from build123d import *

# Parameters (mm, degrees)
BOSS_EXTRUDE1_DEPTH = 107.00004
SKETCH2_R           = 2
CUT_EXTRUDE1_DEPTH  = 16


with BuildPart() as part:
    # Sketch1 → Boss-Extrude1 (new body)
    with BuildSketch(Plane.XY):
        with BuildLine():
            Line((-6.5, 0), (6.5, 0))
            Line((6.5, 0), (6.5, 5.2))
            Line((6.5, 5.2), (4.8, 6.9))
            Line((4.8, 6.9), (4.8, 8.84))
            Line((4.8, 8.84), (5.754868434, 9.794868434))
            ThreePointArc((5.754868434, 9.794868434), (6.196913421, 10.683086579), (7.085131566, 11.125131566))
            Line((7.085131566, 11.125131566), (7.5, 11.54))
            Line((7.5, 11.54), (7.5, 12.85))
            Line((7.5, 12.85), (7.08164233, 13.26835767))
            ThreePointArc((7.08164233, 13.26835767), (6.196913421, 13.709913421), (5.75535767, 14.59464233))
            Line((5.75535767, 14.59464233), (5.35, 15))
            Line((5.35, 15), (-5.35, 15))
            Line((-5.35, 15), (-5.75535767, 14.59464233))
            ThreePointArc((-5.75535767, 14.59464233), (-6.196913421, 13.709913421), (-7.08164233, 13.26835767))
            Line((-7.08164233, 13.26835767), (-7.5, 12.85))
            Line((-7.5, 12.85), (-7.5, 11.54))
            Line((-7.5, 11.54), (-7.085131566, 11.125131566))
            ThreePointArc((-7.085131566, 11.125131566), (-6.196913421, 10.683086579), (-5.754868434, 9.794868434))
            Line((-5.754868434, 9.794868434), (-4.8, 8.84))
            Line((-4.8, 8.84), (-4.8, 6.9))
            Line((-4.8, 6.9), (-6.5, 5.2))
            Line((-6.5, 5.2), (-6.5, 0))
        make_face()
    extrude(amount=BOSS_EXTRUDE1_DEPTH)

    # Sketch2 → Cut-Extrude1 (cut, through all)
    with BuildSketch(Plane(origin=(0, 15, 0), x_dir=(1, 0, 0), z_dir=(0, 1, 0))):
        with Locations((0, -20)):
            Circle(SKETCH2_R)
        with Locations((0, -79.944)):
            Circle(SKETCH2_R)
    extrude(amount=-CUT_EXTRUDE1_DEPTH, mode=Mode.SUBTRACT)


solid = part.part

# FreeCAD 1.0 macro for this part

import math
import FreeCAD as App
import Part
import Sketcher

V = App.Vector

doc = App.newDocument("Part")
body = doc.addObject("PartDesign::Body", "Body")

sketch1 = body.newObject("Sketcher::SketchObject", "Sketch")
sketch1.AttachmentSupport = (doc.getObject("XY_Plane"), [""])
sketch1.MapMode = "FlatFace"
sketch1.addGeometry(Part.LineSegment(V(-6.5, 0, 0), V(6.5, 0, 0)), False)
sketch1.addGeometry(Part.LineSegment(V(6.5, 0, 0), V(6.5, 5.2, 0)), False)
sketch1.addGeometry(Part.LineSegment(V(6.5, 5.2, 0), V(4.8, 6.9, 0)), False)
sketch1.addGeometry(Part.LineSegment(V(4.8, 6.9, 0), V(4.8, 8.8, 0)), False)
sketch1.addGeometry(Part.LineSegment(V(4.8, 8.8, 0), V(5.8, 9.8, 0)), False)
sketch1.addGeometry(Part.ArcOfCircle(Part.Circle(V(7.3, 9.6, 0), V(0, 0, 1), 1.6), math.radians(98), math.radians(172)), False)
sketch1.addGeometry(Part.LineSegment(V(7.1, 11.1, 0), V(7.5, 11.5, 0)), False)
sketch1.addGeometry(Part.LineSegment(V(7.5, 11.5, 0), V(7.5, 12.8, 0)), False)
sketch1.addGeometry(Part.LineSegment(V(7.5, 12.8, 0), V(7.1, 13.3, 0)), False)
sketch1.addGeometry(Part.ArcOfCircle(Part.Circle(V(7.3, 14.8, 0), V(0, 0, 1), 1.6), math.radians(-172), math.radians(-98)), False)
sketch1.addGeometry(Part.LineSegment(V(5.8, 14.6, 0), V(5.3, 15, 0)), False)
sketch1.addGeometry(Part.LineSegment(V(5.3, 15, 0), V(-5.3, 15, 0)), False)
sketch1.addGeometry(Part.LineSegment(V(-5.3, 15, 0), V(-5.8, 14.6, 0)), False)
sketch1.addGeometry(Part.ArcOfCircle(Part.Circle(V(-7.3, 14.8, 0), V(0, 0, 1), 1.6), math.radians(-82), math.radians(-8)), False)
sketch1.addGeometry(Part.LineSegment(V(-7.1, 13.3, 0), V(-7.5, 12.8, 0)), False)
sketch1.addGeometry(Part.LineSegment(V(-7.5, 12.8, 0), V(-7.5, 11.5, 0)), False)
sketch1.addGeometry(Part.LineSegment(V(-7.5, 11.5, 0), V(-7.1, 11.1, 0)), False)
sketch1.addGeometry(Part.ArcOfCircle(Part.Circle(V(-7.3, 9.6, 0), V(0, 0, 1), 1.6), math.radians(8), math.radians(82)), False)
sketch1.addGeometry(Part.LineSegment(V(-5.8, 9.8, 0), V(-4.8, 8.8, 0)), False)
sketch1.addGeometry(Part.LineSegment(V(-4.8, 8.8, 0), V(-4.8, 6.9, 0)), False)
sketch1.addGeometry(Part.LineSegment(V(-4.8, 6.9, 0), V(-6.5, 5.2, 0)), False)
sketch1.addGeometry(Part.LineSegment(V(-6.5, 5.2, 0), V(-6.5, 0, 0)), False)
sketch1.addConstraint(Sketcher.Constraint("Coincident", 0, 2, 1, 1))
sketch1.addConstraint(Sketcher.Constraint("Coincident", 1, 2, 2, 1))
sketch1.addConstraint(Sketcher.Constraint("Coincident", 2, 2, 3, 1))
sketch1.addConstraint(Sketcher.Constraint("Coincident", 3, 2, 4, 1))
sketch1.addConstraint(Sketcher.Constraint("Coincident", 4, 2, 5, 2))
sketch1.addConstraint(Sketcher.Constraint("Coincident", 5, 1, 6, 1))
sketch1.addConstraint(Sketcher.Constraint("Coincident", 6, 2, 7, 1))
sketch1.addConstraint(Sketcher.Constraint("Coincident", 7, 2, 8, 1))
sketch1.addConstraint(Sketcher.Constraint("Coincident", 8, 2, 9, 2))
sketch1.addConstraint(Sketcher.Constraint("Coincident", 9, 1, 10, 1))
sketch1.addConstraint(Sketcher.Constraint("Coincident", 10, 2, 11, 1))
sketch1.addConstraint(Sketcher.Constraint("Coincident", 11, 2, 12, 1))
sketch1.addConstraint(Sketcher.Constraint("Coincident", 12, 2, 13, 2))
sketch1.addConstraint(Sketcher.Constraint("Coincident", 13, 1, 14, 1))
sketch1.addConstraint(Sketcher.Constraint("Coincident", 14, 2, 15, 1))
sketch1.addConstraint(Sketcher.Constraint("Coincident", 15, 2, 16, 1))
sketch1.addConstraint(Sketcher.Constraint("Coincident", 16, 2, 17, 2))
sketch1.addConstraint(Sketcher.Constraint("Coincident", 17, 1, 18, 1))
sketch1.addConstraint(Sketcher.Constraint("Coincident", 18, 2, 19, 1))
sketch1.addConstraint(Sketcher.Constraint("Coincident", 19, 2, 20, 1))
sketch1.addConstraint(Sketcher.Constraint("Coincident", 20, 2, 21, 1))
sketch1.addConstraint(Sketcher.Constraint("Coincident", 21, 2, 0, 1))
sketch1.addConstraint(Sketcher.Constraint("Horizontal", 0))
sketch1.addConstraint(Sketcher.Constraint("Vertical", 1))
sketch1.addConstraint(Sketcher.Constraint("Vertical", 3))
sketch1.addConstraint(Sketcher.Constraint("Vertical", 7))
sketch1.addConstraint(Sketcher.Constraint("Horizontal", 11))
sketch1.addConstraint(Sketcher.Constraint("Vertical", 15))
sketch1.addConstraint(Sketcher.Constraint("Vertical", 19))
sketch1.addConstraint(Sketcher.Constraint("Vertical", 21))
sketch1.addConstraint(Sketcher.Constraint("Equal", 5, 9))
sketch1.addConstraint(Sketcher.Constraint("Equal", 9, 13))
sketch1.addConstraint(Sketcher.Constraint("Equal", 13, 17))
sketch1.addConstraint(Sketcher.Constraint("Symmetric", 0, 2, 21, 2, -1, 1))
sketch1.addConstraint(Sketcher.Constraint("Symmetric", 9, 3, 13, 3, -2))
sketch1.addConstraint(Sketcher.Constraint("Symmetric", 5, 3, 17, 3, -2))
sketch1.addConstraint(Sketcher.Constraint("Symmetric", 7, 2, 14, 2, -2))
sketch1.addConstraint(Sketcher.Constraint("Symmetric", 3, 2, 18, 2, -2))
sketch1.addConstraint(Sketcher.Constraint("Perpendicular", 2, 4))
sketch1.addConstraint(Sketcher.Constraint("Parallel", 4, 6))
sketch1.addConstraint(Sketcher.Constraint("Perpendicular", 6, 8))
sketch1.addConstraint(Sketcher.Constraint("Parallel", 8, 10))
sketch1.addConstraint(Sketcher.Constraint("Perpendicular", 10, 12))
sketch1.addConstraint(Sketcher.Constraint("Parallel", 12, 14))
sketch1.addConstraint(Sketcher.Constraint("Perpendicular", 14, 16))
sketch1.addConstraint(Sketcher.Constraint("Parallel", 16, 18))
sketch1.addConstraint(Sketcher.Constraint("Perpendicular", 18, 20))
sketch1.addConstraint(Sketcher.Constraint("Horizontal", 9, 1, 12, 2))
sketch1.addConstraint(Sketcher.Constraint("Horizontal", 8, 2, 13, 1))
sketch1.addConstraint(Sketcher.Constraint("Horizontal", 6, 2, 15, 2))
sketch1.addConstraint(Sketcher.Constraint("Horizontal", 2, 2, 19, 2))
sketch1.addConstraint(Sketcher.Constraint("Vertical", 5, 3, 9, 3))
sketch1.addConstraint(Sketcher.Constraint("DistanceX", 0, 1, 0, 2, 13.0))
sketch1.addConstraint(Sketcher.Constraint("Radius", 5, 1.56))
sketch1.addConstraint(Sketcher.Constraint("DistanceX", 11, 2, 11, 1, 10.7))
sketch1.addConstraint(Sketcher.Constraint("DistanceY", 1, 1, 1, 2, 5.2))
sketch1.addConstraint(Sketcher.Constraint("DistanceY", -1, 1, 10, 2, 15.0))
sketch1.addConstraint(Sketcher.Constraint("DistanceY", 3, 1, 3, 2, 1.94))
sketch1.addConstraint(Sketcher.Constraint("DistanceY", 7, 1, 7, 2, 1.31))
sketch1.addConstraint(Sketcher.Constraint("DistanceX", -1, 1, 5, 3, 7.3))
sketch1.addConstraint(Sketcher.Constraint("DistanceX", -1, 1, 2, 2, 4.8))
sketch1.addConstraint(Sketcher.Constraint("DistanceX", -1, 1, 6, 2, 7.5))
sketch1.addConstraint(Sketcher.Constraint("DistanceY", 3, 2, 6, 2, 2.7))
sketch1.addConstraint(Sketcher.Constraint("DistanceY", -1, 1, 5, 3, 9.58))
sketch1.addConstraint(Sketcher.Constraint("DistanceY", -1, 1, 9, 3, 14.813))
pad1 = body.newObject("PartDesign::Pad", "Pad")
pad1.Profile = sketch1
pad1.Length = 107.00004

sketch2 = body.newObject("Sketcher::SketchObject", "Sketch001")
sketch2.AttachmentSupport = (doc.getObject("XZ_Plane"), [""])
sketch2.MapMode = "FlatFace"
sketch2.AttachmentOffset = App.Placement(V(0, 0, -15), App.Rotation())
sketch2.addGeometry(Part.Circle(V(0, 20, 0), V(0, 0, 1), 2), False)
sketch2.addGeometry(Part.Circle(V(0, 79.9, 0), V(0, 0, 1), 2), False)
sketch2.addConstraint(Sketcher.Constraint("Equal", 0, 1))
sketch2.addConstraint(Sketcher.Constraint("PointOnObject", 0, 3, -2))
sketch2.addConstraint(Sketcher.Constraint("PointOnObject", 1, 3, -2))
sketch2.addConstraint(Sketcher.Constraint("Diameter", 0, 4.0))
sketch2.addConstraint(Sketcher.Constraint("DistanceY", -1, 1, 0, 3, 20.0))
sketch2.addConstraint(Sketcher.Constraint("DistanceY", -1, 1, 1, 3, 79.944))
pocket1 = body.newObject("PartDesign::Pocket", "Pocket")
pocket1.Profile = sketch2
pocket1.Type = "ThroughAll"
pocket1.Reversed = True

doc.recompute()
